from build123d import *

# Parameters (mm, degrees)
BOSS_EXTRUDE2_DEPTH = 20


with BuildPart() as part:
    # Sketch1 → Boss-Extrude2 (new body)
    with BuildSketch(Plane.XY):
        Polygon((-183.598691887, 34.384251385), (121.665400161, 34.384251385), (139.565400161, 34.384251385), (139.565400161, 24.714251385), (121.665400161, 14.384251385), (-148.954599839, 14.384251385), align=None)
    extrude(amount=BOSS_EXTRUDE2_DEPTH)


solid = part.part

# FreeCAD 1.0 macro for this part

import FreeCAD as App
import Part
import Sketcher
Q = App.Units.Quantity

doc = App.newDocument("Part")
body = doc.addObject("PartDesign::Body", "Body")

# Sketch on XY plane
sketch1 = doc.addObject("Sketcher::SketchObject", "Sketch")
body.addObject(sketch1)
sketch1.AttachmentSupport = (doc.XY_Plane, [""])
sketch1.MapMode = "FlatFace"
sketch1.addGeometry(Part.LineSegment(App.Vector(140, 34, 0), App.Vector(-184, 34, 0)), False)
sketch1.addGeometry(Part.LineSegment(App.Vector(-184, 34, 0), App.Vector(-149, 14, 0)), False)
sketch1.addGeometry(Part.LineSegment(App.Vector(-149, 14, 0), App.Vector(122, 14, 0)), False)
sketch1.addGeometry(Part.LineSegment(App.Vector(122, 14, 0), App.Vector(140, 25, 0)), False)
sketch1.addGeometry(Part.LineSegment(App.Vector(140, 25, 0), App.Vector(140, 34, 0)), False)
sketch1.addConstraint(Sketcher.Constraint("Coincident", 0, 2, 1, 1))
sketch1.addConstraint(Sketcher.Constraint("Coincident", 1, 2, 2, 1))
sketch1.addConstraint(Sketcher.Constraint("Coincident", 2, 2, 3, 1))
sketch1.addConstraint(Sketcher.Constraint("Coincident", 3, 2, 4, 1))
sketch1.addConstraint(Sketcher.Constraint("Coincident", 4, 2, 0, 1))
sketch1.addConstraint(Sketcher.Constraint("Horizontal", 0))
sketch1.addConstraint(Sketcher.Constraint("Horizontal", 2))
sketch1.addConstraint(Sketcher.Constraint("Vertical", 4))
sketch1.addConstraint(Sketcher.Constraint("DistanceY", 1, 2, 0, 2, Q("20 mm")))
sketch1.addConstraint(Sketcher.Constraint("DistanceX", 2, 1, 2, 2, Q("270.62 mm")))
sketch1.addConstraint(Sketcher.Constraint("DistanceY", 4, 1, 4, 2, Q("9.67 mm")))
sketch1.addConstraint(Sketcher.Constraint("DistanceX", 2, 2, 3, 2, Q("17.9 mm")))
sketch1.addConstraint(Sketcher.Constraint("DistanceX", 1, 2, -1, 1, Q("148.9546 mm")))
sketch1.addConstraint(Sketcher.Constraint("DistanceX", 0, 2, 0, 1, Q("323.164092 mm")))
sketch1.addConstraint(Sketcher.Constraint("DistanceY", -1, 1, 0, 2, Q("34.384251 mm")))
pad1 = doc.addObject("PartDesign::Pad", "Pad")
body.addObject(pad1)
pad1.Profile = sketch1
pad1.Length = 20

doc.recompute()
